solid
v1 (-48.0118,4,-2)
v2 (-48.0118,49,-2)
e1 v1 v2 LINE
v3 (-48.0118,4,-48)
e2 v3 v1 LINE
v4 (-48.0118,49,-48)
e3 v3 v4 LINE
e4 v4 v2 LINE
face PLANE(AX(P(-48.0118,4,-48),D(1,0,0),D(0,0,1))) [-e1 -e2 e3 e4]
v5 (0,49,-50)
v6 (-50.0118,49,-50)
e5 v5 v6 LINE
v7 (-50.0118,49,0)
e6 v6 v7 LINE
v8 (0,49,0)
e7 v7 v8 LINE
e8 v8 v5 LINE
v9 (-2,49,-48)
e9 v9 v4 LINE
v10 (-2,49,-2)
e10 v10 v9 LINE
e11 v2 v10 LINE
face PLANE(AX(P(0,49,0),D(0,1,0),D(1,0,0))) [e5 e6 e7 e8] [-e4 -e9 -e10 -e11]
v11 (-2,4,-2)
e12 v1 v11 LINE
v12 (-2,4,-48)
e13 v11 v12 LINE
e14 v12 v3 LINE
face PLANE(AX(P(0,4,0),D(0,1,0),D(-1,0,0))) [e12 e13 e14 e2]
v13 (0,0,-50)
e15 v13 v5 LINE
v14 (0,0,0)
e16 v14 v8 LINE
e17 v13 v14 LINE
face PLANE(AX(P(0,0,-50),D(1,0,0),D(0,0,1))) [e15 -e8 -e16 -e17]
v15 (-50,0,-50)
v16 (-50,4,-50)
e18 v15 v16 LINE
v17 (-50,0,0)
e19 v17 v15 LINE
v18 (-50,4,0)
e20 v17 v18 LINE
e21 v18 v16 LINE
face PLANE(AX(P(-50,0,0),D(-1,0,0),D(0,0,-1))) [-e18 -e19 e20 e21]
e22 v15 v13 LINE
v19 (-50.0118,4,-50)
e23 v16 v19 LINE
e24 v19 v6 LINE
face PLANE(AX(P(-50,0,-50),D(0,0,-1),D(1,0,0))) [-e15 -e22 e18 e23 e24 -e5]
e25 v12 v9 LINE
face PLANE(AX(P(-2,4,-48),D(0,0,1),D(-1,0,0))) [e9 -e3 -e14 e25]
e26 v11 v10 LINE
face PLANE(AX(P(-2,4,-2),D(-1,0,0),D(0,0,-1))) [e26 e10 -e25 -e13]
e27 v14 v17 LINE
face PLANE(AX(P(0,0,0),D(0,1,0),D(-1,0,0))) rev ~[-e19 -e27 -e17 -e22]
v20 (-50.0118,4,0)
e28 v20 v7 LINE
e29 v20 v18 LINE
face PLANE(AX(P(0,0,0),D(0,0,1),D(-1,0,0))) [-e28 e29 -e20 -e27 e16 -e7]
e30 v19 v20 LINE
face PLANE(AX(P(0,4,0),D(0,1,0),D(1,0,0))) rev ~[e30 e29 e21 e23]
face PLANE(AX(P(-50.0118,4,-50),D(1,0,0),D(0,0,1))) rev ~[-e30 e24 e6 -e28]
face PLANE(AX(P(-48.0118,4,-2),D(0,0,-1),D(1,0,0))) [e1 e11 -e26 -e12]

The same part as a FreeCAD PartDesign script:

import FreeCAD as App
import Part
import Sketcher
from FreeCAD import Vector
Q = App.Units.Quantity

doc = App.newDocument("Part")
body = doc.addObject("PartDesign::Body", "Body")

sketch1 = body.newObject("Sketcher::SketchObject", "Sketch")
sketch1.AttachmentSupport = (doc.getObject("XZ_Plane"), [""])
sketch1.MapMode = "FlatFace"
sketch1.addGeometry([
    Part.LineSegment(Vector(-50, 0, 0), Vector(0, 0, 0)),
    Part.LineSegment(Vector(0, 0, 0), Vector(0, -50, 0)),
    Part.LineSegment(Vector(0, -50, 0), Vector(-50, -50, 0)),
    Part.LineSegment(Vector(-50, -50, 0), Vector(-50, 0, 0)),
], False)
sketch1.addConstraint([
    Sketcher.Constraint("Coincident", 0, 2, 1, 1),
    Sketcher.Constraint("Coincident", 1, 2, 2, 1),
    Sketcher.Constraint("Coincident", 2, 2, 3, 1),
    Sketcher.Constraint("Coincident", 3, 2, 0, 1),
    Sketcher.Constraint("Horizontal", 0),
    Sketcher.Constraint("Vertical", 1),
    Sketcher.Constraint("Horizontal", 2),
    Sketcher.Constraint("Vertical", 3),
    Sketcher.Constraint("Coincident", 0, 2, -1, 1),
    Sketcher.Constraint("Equal", 2, 1),
    Sketcher.Constraint("DistanceX", 0, 1, 0, 2, Q("50 mm")),
])
pad1 = body.newObject("PartDesign::Pad", "Pad")
pad1.Profile = sketch1
pad1.Length = 4
pad1.Reversed = True

sketch2 = body.newObject("Sketcher::SketchObject", "Sketch001")
sketch2.AttachmentSupport = (doc.getObject("XZ_Plane"), [""])
sketch2.MapMode = "FlatFace"
sketch2.AttachmentOffset = App.Placement(Vector(0, 0, -4), App.Rotation())
sketch2.addGeometry([
    Part.LineSegment(Vector(-50, 0, 0), Vector(0, 0, 0)),
    Part.LineSegment(Vector(0, 0, 0), Vector(0, -50, 0)),
    Part.LineSegment(Vector(0, -50, 0), Vector(-50, -50, 0)),
    Part.LineSegment(Vector(-50, -50, 0), Vector(-50, 0, 0)),
    Part.LineSegment(Vector(-2, -2, 0), Vector(-48, -2, 0)),
    Part.LineSegment(Vector(-48, -2, 0), Vector(-48, -48, 0)),
    Part.LineSegment(Vector(-48, -48, 0), Vector(-2, -48, 0)),
    Part.LineSegment(Vector(-2, -48, 0), Vector(-2, -2, 0)),
], False)
sketch2.addConstraint([
    Sketcher.Constraint("Coincident", 0, 2, 1, 1),
    Sketcher.Constraint("Coincident", 1, 2, 2, 1),
    Sketcher.Constraint("Coincident", 2, 2, 3, 1),
    Sketcher.Constraint("Coincident", 3, 2, 0, 1),
    Sketcher.Constraint("Coincident", 4, 2, 5, 1),
    Sketcher.Constraint("Coincident", 5, 2, 6, 1),
    Sketcher.Constraint("Coincident", 6, 2, 7, 1),
    Sketcher.Constraint("Coincident", 7, 2, 4, 1),
    Sketcher.Constraint("Horizontal", 0),
    Sketcher.Constraint("Vertical", 1),
    Sketcher.Constraint("Horizontal", 2),
    Sketcher.Constraint("Vertical", 3),
    Sketcher.Constraint("Horizontal", 4),
    Sketcher.Constraint("Vertical", 5),
    Sketcher.Constraint("Horizontal", 6),
    Sketcher.Constraint("Vertical", 7),
    Sketcher.Constraint("Coincident", 0, 2, -1, 1),
    Sketcher.Constraint("DistanceY", 4, 2, -1, 1, Q("2 mm")),
    Sketcher.Constraint("DistanceX", 6, 2, -1, 1, Q("2 mm")),
    Sketcher.Constraint("DistanceX", 3, 2, 4, 2, Q("2 mm")),
    Sketcher.Constraint("DistanceY", 2, 2, 5, 2, Q("2 mm")),
    Sketcher.Constraint("DistanceY", 1, 2, 1, 1, Q("50 mm")),
    Sketcher.Constraint("DistanceX", 0, 1, 0, 2, Q("50.0118 mm")),
])
pad2 = body.newObject("PartDesign::Pad", "Pad001")
pad2.Profile = sketch2
pad2.Length = 45
pad2.Reversed = True

doc.recompute()
